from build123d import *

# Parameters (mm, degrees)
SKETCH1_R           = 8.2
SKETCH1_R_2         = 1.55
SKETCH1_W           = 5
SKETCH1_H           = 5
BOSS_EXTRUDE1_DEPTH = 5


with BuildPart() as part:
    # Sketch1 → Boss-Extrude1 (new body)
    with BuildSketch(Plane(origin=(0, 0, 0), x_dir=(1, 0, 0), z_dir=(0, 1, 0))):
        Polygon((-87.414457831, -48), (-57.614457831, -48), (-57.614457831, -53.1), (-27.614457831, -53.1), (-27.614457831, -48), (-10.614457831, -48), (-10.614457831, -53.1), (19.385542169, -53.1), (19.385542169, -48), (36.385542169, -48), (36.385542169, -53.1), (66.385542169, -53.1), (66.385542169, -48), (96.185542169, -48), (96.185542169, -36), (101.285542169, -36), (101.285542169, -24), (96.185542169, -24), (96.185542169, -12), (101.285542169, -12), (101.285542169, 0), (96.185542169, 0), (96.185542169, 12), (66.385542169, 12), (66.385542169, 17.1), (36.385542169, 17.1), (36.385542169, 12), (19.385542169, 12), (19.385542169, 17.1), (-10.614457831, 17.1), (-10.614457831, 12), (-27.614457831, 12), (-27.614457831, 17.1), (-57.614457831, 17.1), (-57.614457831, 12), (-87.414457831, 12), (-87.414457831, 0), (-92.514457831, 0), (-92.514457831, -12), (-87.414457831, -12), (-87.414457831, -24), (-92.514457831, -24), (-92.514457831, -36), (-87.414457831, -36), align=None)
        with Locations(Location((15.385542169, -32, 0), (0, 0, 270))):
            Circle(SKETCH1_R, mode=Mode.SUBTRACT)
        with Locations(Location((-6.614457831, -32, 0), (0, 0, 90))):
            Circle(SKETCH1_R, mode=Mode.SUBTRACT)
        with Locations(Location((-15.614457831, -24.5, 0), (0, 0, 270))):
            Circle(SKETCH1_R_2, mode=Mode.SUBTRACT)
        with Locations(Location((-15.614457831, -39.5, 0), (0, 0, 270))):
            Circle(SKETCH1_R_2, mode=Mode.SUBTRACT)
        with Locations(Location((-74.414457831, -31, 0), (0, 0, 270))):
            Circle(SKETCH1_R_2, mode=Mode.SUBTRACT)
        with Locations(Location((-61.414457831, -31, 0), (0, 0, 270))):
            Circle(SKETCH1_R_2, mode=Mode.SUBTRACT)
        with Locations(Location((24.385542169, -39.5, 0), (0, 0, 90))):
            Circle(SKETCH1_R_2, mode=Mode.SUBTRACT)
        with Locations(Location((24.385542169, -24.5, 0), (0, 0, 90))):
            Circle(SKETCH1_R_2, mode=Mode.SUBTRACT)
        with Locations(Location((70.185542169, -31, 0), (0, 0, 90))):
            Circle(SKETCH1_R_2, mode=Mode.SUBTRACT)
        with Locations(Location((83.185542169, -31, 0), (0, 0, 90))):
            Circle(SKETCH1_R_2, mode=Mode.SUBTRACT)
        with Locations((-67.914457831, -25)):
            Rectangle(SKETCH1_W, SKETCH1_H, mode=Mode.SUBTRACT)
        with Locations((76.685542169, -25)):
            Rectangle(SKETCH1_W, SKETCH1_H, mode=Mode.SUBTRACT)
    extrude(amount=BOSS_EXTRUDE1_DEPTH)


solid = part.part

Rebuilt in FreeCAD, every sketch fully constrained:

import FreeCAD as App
import Part
import Sketcher

doc = App.newDocument("Part")
body = doc.addObject("PartDesign::Body", "Body")

# Sketch on XZ plane
sketch1 = doc.addObject("Sketcher::SketchObject", "Sketch")
body.addObject(sketch1)
sketch1.AttachmentSupport = (doc.XZ_Plane, [""])
sketch1.MapMode = "FlatFace"
sketch1.addGeometry(Part.LineSegment(App.Vector(-87.4, 48, 0), App.Vector(-57.6, 48, 0)), False)
sketch1.addGeometry(Part.LineSegment(App.Vector(-57.6, 48, 0), App.Vector(-57.6, 53.1, 0)), False)
sketch1.addGeometry(Part.LineSegment(App.Vector(-57.6, 53.1, 0), App.Vector(-27.6, 53.1, 0)), False)
sketch1.addGeometry(Part.LineSegment(App.Vector(-27.6, 53.1, 0), App.Vector(-27.6, 48, 0)), False)
sketch1.addGeometry(Part.LineSegment(App.Vector(-27.6, 48, 0), App.Vector(-10.6, 48, 0)), False)
sketch1.addGeometry(Part.LineSegment(App.Vector(-10.6, 48, 0), App.Vector(-10.6, 53.1, 0)), False)
sketch1.addGeometry(Part.LineSegment(App.Vector(-10.6, 53.1, 0), App.Vector(19.4, 53.1, 0)), False)
sketch1.addGeometry(Part.LineSegment(App.Vector(19.4, 53.1, 0), App.Vector(19.4, 48, 0)), False)
sketch1.addGeometry(Part.LineSegment(App.Vector(19.4, 48, 0), App.Vector(36.4, 48, 0)), False)
sketch1.addGeometry(Part.LineSegment(App.Vector(36.4, 48, 0), App.Vector(36.4, 53.1, 0)), False)
sketch1.addGeometry(Part.LineSegment(App.Vector(36.4, 53.1, 0), App.Vector(66.4, 53.1, 0)), False)
sketch1.addGeometry(Part.LineSegment(App.Vector(66.4, 53.1, 0), App.Vector(66.4, 48, 0)), False)
sketch1.addGeometry(Part.LineSegment(App.Vector(66.4, 48, 0), App.Vector(96.2, 48, 0)), False)
sketch1.addGeometry(Part.LineSegment(App.Vector(96.2, 48, 0), App.Vector(96.2, 36, 0)), False)
sketch1.addGeometry(Part.LineSegment(App.Vector(96.2, 36, 0), App.Vector(101.3, 36, 0)), False)
sketch1.addGeometry(Part.LineSegment(App.Vector(101.3, 36, 0), App.Vector(101.3, 24, 0)), False)
sketch1.addGeometry(Part.LineSegment(App.Vector(101.3, 24, 0), App.Vector(96.2, 24, 0)), False)
sketch1.addGeometry(Part.LineSegment(App.Vector(96.2, 24, 0), App.Vector(96.2, 12, 0)), False)
sketch1.addGeometry(Part.LineSegment(App.Vector(96.2, 12, 0), App.Vector(101.3, 12, 0)), False)
sketch1.addGeometry(Part.LineSegment(App.Vector(101.3, 12, 0), App.Vector(101.3, 0, 0)), False)
sketch1.addGeometry(Part.LineSegment(App.Vector(101.3, 0, 0), App.Vector(96.2, 0, 0)), False)
sketch1.addGeometry(Part.LineSegment(App.Vector(96.2, 0, 0), App.Vector(96.2, -12, 0)), False)
sketch1.addGeometry(Part.LineSegment(App.Vector(96.2, -12, 0), App.Vector(66.4, -12, 0)), False)
sketch1.addGeometry(Part.LineSegment(App.Vector(66.4, -12, 0), App.Vector(66.4, -17.1, 0)), False)
sketch1.addGeometry(Part.LineSegment(App.Vector(66.4, -17.1, 0), App.Vector(36.4, -17.1, 0)), False)
sketch1.addGeometry(Part.LineSegment(App.Vector(36.4, -17.1, 0), App.Vector(36.4, -12, 0)), False)
sketch1.addGeometry(Part.LineSegment(App.Vector(36.4, -12, 0), App.Vector(19.4, -12, 0)), False)
sketch1.addGeometry(Part.LineSegment(App.Vector(19.4, -12, 0), App.Vector(19.4, -17.1, 0)), False)
sketch1.addGeometry(Part.LineSegment(App.Vector(19.4, -17.1, 0), App.Vector(-10.6, -17.1, 0)), False)
sketch1.addGeometry(Part.LineSegment(App.Vector(-10.6, -17.1, 0), App.Vector(-10.6, -12, 0)), False)
sketch1.addGeometry(Part.LineSegment(App.Vector(-10.6, -12, 0), App.Vector(-27.6, -12, 0)), False)
sketch1.addGeometry(Part.LineSegment(App.Vector(-27.6, -12, 0), App.Vector(-27.6, -17.1, 0)), False)
sketch1.addGeometry(Part.LineSegment(App.Vector(-27.6, -17.1, 0), App.Vector(-57.6, -17.1, 0)), False)
sketch1.addGeometry(Part.LineSegment(App.Vector(-57.6, -17.1, 0), App.Vector(-57.6, -12, 0)), False)
sketch1.addGeometry(Part.LineSegment(App.Vector(-57.6, -12, 0), App.Vector(-87.4, -12, 0)), False)
sketch1.addGeometry(Part.LineSegment(App.Vector(-87.4, -12, 0), App.Vector(-87.4, 0, 0)), False)
sketch1.addGeometry(Part.LineSegment(App.Vector(-87.4, 0, 0), App.Vector(-92.5, 0, 0)), False)
sketch1.addGeometry(Part.LineSegment(App.Vector(-92.5, 0, 0), App.Vector(-92.5, 12, 0)), False)
sketch1.addGeometry(Part.LineSegment(App.Vector(-92.5, 12, 0), App.Vector(-87.4, 12, 0)), False)
sketch1.addGeometry(Part.LineSegment(App.Vector(-87.4, 12, 0), App.Vector(-87.4, 24, 0)), False)
sketch1.addGeometry(Part.LineSegment(App.Vector(-87.4, 24, 0), App.Vector(-92.5, 24, 0)), False)
sketch1.addGeometry(Part.LineSegment(App.Vector(-92.5, 24, 0), App.Vector(-92.5, 36, 0)), False)
sketch1.addGeometry(Part.LineSegment(App.Vector(-92.5, 36, 0), App.Vector(-87.4, 36, 0)), False)
sketch1.addGeometry(Part.LineSegment(App.Vector(-87.4, 36, 0), App.Vector(-87.4, 48, 0)), False)
sketch1.addGeometry(Part.Circle(App.Vector(-15.6, 39.5, 0), App.Vector(0, 0, 1), 1.6), False)
sketch1.addGeometry(Part.Circle(App.Vector(-6.6, 32, 0), App.Vector(0, 0, 1), 8.2), False)
sketch1.addGeometry(Part.Circle(App.Vector(24.4, 39.5, 0), App.Vector(0, 0, 1), 1.6), False)
sketch1.addGeometry(Part.Circle(App.Vector(15.4, 32, 0), App.Vector(0, 0, 1), 8.2), False)
sketch1.addGeometry(Part.Circle(App.Vector(-74.4, 31, 0), App.Vector(0, 0, 1), 1.6), False)
sketch1.addGeometry(Part.Circle(App.Vector(-61.4, 31, 0), App.Vector(0, 0, 1), 1.6), False)
sketch1.addGeometry(Part.LineSegment(App.Vector(-65.4, 27.5, 0), App.Vector(-70.4, 27.5, 0)), False)
sketch1.addGeometry(Part.LineSegment(App.Vector(-70.4, 27.5, 0), App.Vector(-70.4, 22.5, 0)), False)
sketch1.addGeometry(Part.LineSegment(App.Vector(-70.4, 22.5, 0), App.Vector(-65.4, 22.5, 0)), False)
sketch1.addGeometry(Part.LineSegment(App.Vector(-65.4, 22.5, 0), App.Vector(-65.4, 27.5, 0)), False)
sketch1.addGeometry(Part.Circle(App.Vector(-15.6, 24.5, 0), App.Vector(0, 0, 1), 1.6), False)
sketch1.addGeometry(Part.Circle(App.Vector(70.2, 31, 0), App.Vector(0, 0, 1), 1.6), False)
sketch1.addGeometry(Part.Circle(App.Vector(83.2, 31, 0), App.Vector(0, 0, 1), 1.6), False)
sketch1.addGeometry(Part.Circle(App.Vector(24.4, 24.5, 0), App.Vector(0, 0, 1), 1.6), False)
sketch1.addGeometry(Part.LineSegment(App.Vector(79.2, 27.5, 0), App.Vector(74.2, 27.5, 0)), False)
sketch1.addGeometry(Part.LineSegment(App.Vector(74.2, 27.5, 0), App.Vector(74.2, 22.5, 0)), False)
sketch1.addGeometry(Part.LineSegment(App.Vector(74.2, 22.5, 0), App.Vector(79.2, 22.5, 0)), False)
sketch1.addGeometry(Part.LineSegment(App.Vector(79.2, 22.5, 0), App.Vector(79.2, 27.5, 0)), False)
sketch1.addConstraint(Sketcher.Constraint("Coincident", 0, 2, 1, 1))
sketch1.addConstraint(Sketcher.Constraint("Coincident", 1, 2, 2, 1))
sketch1.addConstraint(Sketcher.Constraint("Coincident", 2, 2, 3, 1))
sketch1.addConstraint(Sketcher.Constraint("Coincident", 3, 2, 4, 1))
sketch1.addConstraint(Sketcher.Constraint("Coincident", 4, 2, 5, 1))
sketch1.addConstraint(Sketcher.Constraint("Coincident", 5, 2, 6, 1))
sketch1.addConstraint(Sketcher.Constraint("Coincident", 6, 2, 7, 1))
sketch1.addConstraint(Sketcher.Constraint("Coincident", 7, 2, 8, 1))
sketch1.addConstraint(Sketcher.Constraint("Coincident", 8, 2, 9, 1))
sketch1.addConstraint(Sketcher.Constraint("Coincident", 9, 2, 10, 1))
sketch1.addConstraint(Sketcher.Constraint("Coincident", 10, 2, 11, 1))
sketch1.addConstraint(Sketcher.Constraint("Coincident", 11, 2, 12, 1))
sketch1.addConstraint(Sketcher.Constraint("Coincident", 12, 2, 13, 1))
sketch1.addConstraint(Sketcher.Constraint("Coincident", 13, 2, 14, 1))
sketch1.addConstraint(Sketcher.Constraint("Coincident", 14, 2, 15, 1))
sketch1.addConstraint(Sketcher.Constraint("Coincident", 15, 2, 16, 1))
sketch1.addConstraint(Sketcher.Constraint("Coincident", 16, 2, 17, 1))
sketch1.addConstraint(Sketcher.Constraint("Coincident", 17, 2, 18, 1))
sketch1.addConstraint(Sketcher.Constraint("Coincident", 18, 2, 19, 1))
sketch1.addConstraint(Sketcher.Constraint("Coincident", 19, 2, 20, 1))
sketch1.addConstraint(Sketcher.Constraint("Coincident", 20, 2, 21, 1))
sketch1.addConstraint(Sketcher.Constraint("Coincident", 21, 2, 22, 1))
sketch1.addConstraint(Sketcher.Constraint("Coincident", 22, 2, 23, 1))
sketch1.addConstraint(Sketcher.Constraint("Coincident", 23, 2, 24, 1))
sketch1.addConstraint(Sketcher.Constraint("Coincident", 24, 2, 25, 1))
sketch1.addConstraint(Sketcher.Constraint("Coincident", 25, 2, 26, 1))
sketch1.addConstraint(Sketcher.Constraint("Coincident", 26, 2, 27, 1))
sketch1.addConstraint(Sketcher.Constraint("Coincident", 27, 2, 28, 1))
sketch1.addConstraint(Sketcher.Constraint("Coincident", 28, 2, 29, 1))
sketch1.addConstraint(Sketcher.Constraint("Coincident", 29, 2, 30, 1))
sketch1.addConstraint(Sketcher.Constraint("Coincident", 30, 2, 31, 1))
sketch1.addConstraint(Sketcher.Constraint("Coincident", 31, 2, 32, 1))
sketch1.addConstraint(Sketcher.Constraint("Coincident", 32, 2, 33, 1))
sketch1.addConstraint(Sketcher.Constraint("Coincident", 33, 2, 34, 1))
sketch1.addConstraint(Sketcher.Constraint("Coincident", 34, 2, 35, 1))
sketch1.addConstraint(Sketcher.Constraint("Coincident", 35, 2, 36, 1))
sketch1.addConstraint(Sketcher.Constraint("Coincident", 36, 2, 37, 1))
sketch1.addConstraint(Sketcher.Constraint("Coincident", 37, 2, 38, 1))
sketch1.addConstraint(Sketcher.Constraint("Coincident", 38, 2, 39, 1))
sketch1.addConstraint(Sketcher.Constraint("Coincident", 39, 2, 40, 1))
sketch1.addConstraint(Sketcher.Constraint("Coincident", 40, 2, 41, 1))
sketch1.addConstraint(Sketcher.Constraint("Coincident", 41, 2, 42, 1))
sketch1.addConstraint(Sketcher.Constraint("Coincident", 42, 2, 43, 1))
sketch1.addConstraint(Sketcher.Constraint("Coincident", 43, 2, 0, 1))
sketch1.addConstraint(Sketcher.Constraint("Coincident", 50, 2, 51, 1))
sketch1.addConstraint(Sketcher.Constraint("Coincident", 51, 2, 52, 1))
sketch1.addConstraint(Sketcher.Constraint("Coincident", 52, 2, 53, 1))
sketch1.addConstraint(Sketcher.Constraint("Coincident", 53, 2, 50, 1))
sketch1.addConstraint(Sketcher.Constraint("Coincident", 58, 2, 59, 1))
sketch1.addConstraint(Sketcher.Constraint("Coincident", 59, 2, 60, 1))
sketch1.addConstraint(Sketcher.Constraint("Coincident", 60, 2, 61, 1))
sketch1.addConstraint(Sketcher.Constraint("Coincident", 61, 2, 58, 1))
sketch1.addConstraint(Sketcher.Constraint("Horizontal", 0))
sketch1.addConstraint(Sketcher.Constraint("Vertical", 1))
sketch1.addConstraint(Sketcher.Constraint("Horizontal", 2))
sketch1.addConstraint(Sketcher.Constraint("Vertical", 3))
sketch1.addConstraint(Sketcher.Constraint("Horizontal", 4))
sketch1.addConstraint(Sketcher.Constraint("Vertical", 5))
sketch1.addConstraint(Sketcher.Constraint("Horizontal", 6))
sketch1.addConstraint(Sketcher.Constraint("Vertical", 7))
sketch1.addConstraint(Sketcher.Constraint("Horizontal", 8))
sketch1.addConstraint(Sketcher.Constraint("Vertical", 9))
sketch1.addConstraint(Sketcher.Constraint("Horizontal", 10))
sketch1.addConstraint(Sketcher.Constraint("Vertical", 11))
sketch1.addConstraint(Sketcher.Constraint("Horizontal", 12))
sketch1.addConstraint(Sketcher.Constraint("Vertical", 13))
sketch1.addConstraint(Sketcher.Constraint("Horizontal", 14))
sketch1.addConstraint(Sketcher.Constraint("Vertical", 15))
sketch1.addConstraint(Sketcher.Constraint("Horizontal", 16))
sketch1.addConstraint(Sketcher.Constraint("Vertical", 17))
sketch1.addConstraint(Sketcher.Constraint("Horizontal", 18))
sketch1.addConstraint(Sketcher.Constraint("Vertical", 19))
sketch1.addConstraint(Sketcher.Constraint("Horizontal", 20))
sketch1.addConstraint(Sketcher.Constraint("Vertical", 21))
sketch1.addConstraint(Sketcher.Constraint("Horizontal", 22))
sketch1.addConstraint(Sketcher.Constraint("Vertical", 23))
sketch1.addConstraint(Sketcher.Constraint("Horizontal", 24))
sketch1.addConstraint(Sketcher.Constraint("Vertical", 25))
sketch1.addConstraint(Sketcher.Constraint("Horizontal", 26))
sketch1.addConstraint(Sketcher.Constraint("Vertical", 27))
sketch1.addConstraint(Sketcher.Constraint("Horizontal", 28))
sketch1.addConstraint(Sketcher.Constraint("Vertical", 29))
sketch1.addConstraint(Sketcher.Constraint("Horizontal", 30))
sketch1.addConstraint(Sketcher.Constraint("Vertical", 31))
sketch1.addConstraint(Sketcher.Constraint("Horizontal", 32))
sketch1.addConstraint(Sketcher.Constraint("Vertical", 33))
sketch1.addConstraint(Sketcher.Constraint("Horizontal", 34))
sketch1.addConstraint(Sketcher.Constraint("Vertical", 35))
sketch1.addConstraint(Sketcher.Constraint("Horizontal", 36))
sketch1.addConstraint(Sketcher.Constraint("Vertical", 37))
sketch1.addConstraint(Sketcher.Constraint("Horizontal", 38))
sketch1.addConstraint(Sketcher.Constraint("Vertical", 39))
sketch1.addConstraint(Sketcher.Constraint("Horizontal", 40))
sketch1.addConstraint(Sketcher.Constraint("Vertical", 41))
sketch1.addConstraint(Sketcher.Constraint("Horizontal", 42))
sketch1.addConstraint(Sketcher.Constraint("Vertical", 43))
sketch1.addConstraint(Sketcher.Constraint("Horizontal", 50))
sketch1.addConstraint(Sketcher.Constraint("Vertical", 51))
sketch1.addConstraint(Sketcher.Constraint("Horizontal", 52))
sketch1.addConstraint(Sketcher.Constraint("Vertical", 53))
sketch1.addConstraint(Sketcher.Constraint("Horizontal", 58))
sketch1.addConstraint(Sketcher.Constraint("Vertical", 59))
sketch1.addConstraint(Sketcher.Constraint("Horizontal", 60))
sketch1.addConstraint(Sketcher.Constraint("Vertical", 61))
sketch1.addConstraint(Sketcher.Constraint("Equal", 44, 46))
sketch1.addConstraint(Sketcher.Constraint("Equal", 45, 47))
sketch1.addConstraint(Sketcher.Constraint("Equal", 46, 48))
sketch1.addConstraint(Sketcher.Constraint("Equal", 48, 49))
sketch1.addConstraint(Sketcher.Constraint("Equal", 49, 54))
sketch1.addConstraint(Sketcher.Constraint("Equal", 54, 55))
sketch1.addConstraint(Sketcher.Constraint("Equal", 55, 56))
sketch1.addConstraint(Sketcher.Constraint("Equal", 56, 57))
sketch1.addConstraint(Sketcher.Constraint("Symmetric", 17, 2, 21, 2, -1))
sketch1.addConstraint(Sketcher.Constraint("Symmetric", 34, 2, 38, 2, -1))
sketch1.addConstraint(Sketcher.Constraint("PointOnObject", 19, 2, -1))
sketch1.addConstraint(Sketcher.Constraint("PointOnObject", 35, 2, -1))
sketch1.addConstraint(Sketcher.Constraint("Horizontal", 44, 3, 46, 3))
sketch1.addConstraint(Sketcher.Constraint("Horizontal", 45, 3, 47, 3))
sketch1.addConstraint(Sketcher.Constraint("Horizontal", 48, 3, 49, 3))
sketch1.addConstraint(Sketcher.Constraint("Horizontal", 49, 3, 55, 3))
sketch1.addConstraint(Sketcher.Constraint("Horizontal", 55, 3, 56, 3))
sketch1.addConstraint(Sketcher.Constraint("Horizontal", 54, 3, 57, 3))
sketch1.addConstraint(Sketcher.Constraint("Horizontal", 0, 2, 3, 2))
sketch1.addConstraint(Sketcher.Constraint("Horizontal", 2, 2, 5, 2))
sketch1.addConstraint(Sketcher.Constraint("Horizontal", 4, 2, 7, 2))
sketch1.addConstraint(Sketcher.Constraint("Horizontal", 6, 2, 9, 2))
sketch1.addConstraint(Sketcher.Constraint("Horizontal", 8, 2, 11, 2))
sketch1.addConstraint(Sketcher.Constraint("Horizontal", 22, 2, 25, 2))
sketch1.addConstraint(Sketcher.Constraint("Horizontal", 24, 2, 27, 2))
sketch1.addConstraint(Sketcher.Constraint("Horizontal", 26, 2, 29, 2))
sketch1.addConstraint(Sketcher.Constraint("Horizontal", 28, 2, 31, 2))
sketch1.addConstraint(Sketcher.Constraint("Horizontal", 30, 2, 33, 2))
sketch1.addConstraint(Sketcher.Constraint("Horizontal", 16, 2, 39, 2))
sketch1.addConstraint(Sketcher.Constraint("Horizontal", 14, 2, 41, 2))
sketch1.addConstraint(Sketcher.Constraint("Horizontal", 53, 2, 58, 2))
sketch1.addConstraint(Sketcher.Constraint("Horizontal", 52, 2, 59, 2))
sketch1.addConstraint(Sketcher.Constraint("Vertical", 44, 3, 54, 3))
sketch1.addConstraint(Sketcher.Constraint("Vertical", 46, 3, 57, 3))
sketch1.addConstraint(Sketcher.Constraint("Vertical", 13, 2, 16, 2))
sketch1.addConstraint(Sketcher.Constraint("Vertical", 15, 2, 18, 2))
sketch1.addConstraint(Sketcher.Constraint("Vertical", 11, 2, 22, 2))
sketch1.addConstraint(Sketcher.Constraint("Vertical", 9, 2, 24, 2))
sketch1.addConstraint(Sketcher.Constraint("Vertical", 7, 2, 26, 2))
sketch1.addConstraint(Sketcher.Constraint("Vertical", 5, 2, 28, 2))
sketch1.addConstraint(Sketcher.Constraint("Vertical", 3, 2, 30, 2))
sketch1.addConstraint(Sketcher.Constraint("Vertical", 1, 2, 32, 2))
sketch1.addConstraint(Sketcher.Constraint("Vertical", 37, 2, 40, 2))
sketch1.addConstraint(Sketcher.Constraint("Vertical", 39, 2, 42, 2))
sketch1.addConstraint(Sketcher.Constraint("Equal", 2, 6))
sketch1.addConstraint(Sketcher.Constraint("Equal", 4, 8))
sketch1.addConstraint(Sketcher.Constraint("Equal", 6, 10))
sketch1.addConstraint(Sketcher.Constraint("Equal", 0, 12))
sketch1.addConstraint(Sketcher.Constraint("Equal", 20, 36))
sketch1.addConstraint(Sketcher.Constraint("Equal", 52, 58))
sketch1.addConstraint(Sketcher.Constraint("Equal", 42, 1))
sketch1.addConstraint(Sketcher.Constraint("Equal", 13, 15))
sketch1.addConstraint(Sketcher.Constraint("Equal", 15, 17))
sketch1.addConstraint(Sketcher.Constraint("Equal", 17, 19))
sketch1.addConstraint(Sketcher.Constraint("Equal", 11, 23))
sketch1.addConstraint(Sketcher.Constraint("Equal", 60, 51))
sketch1.addConstraint(Sketcher.Constraint("Diameter", 44, 3.1))
sketch1.addConstraint(Sketcher.Constraint("Diameter", 45, 16.4))
sketch1.addConstraint(Sketcher.Constraint("DistanceX", 2, 1, 2, 2, 30.0))
sketch1.addConstraint(Sketcher.Constraint("DistanceX", 4, 1, 4, 2, 17.0))
sketch1.addConstraint(Sketcher.Constraint("DistanceX", 50, 2, 50, 1, 5.0))
sketch1.addConstraint(Sketcher.Constraint("DistanceY", 13, 2, 13, 1, 12.0))
sketch1.addConstraint(Sketcher.Constraint("DistanceX", 0, 1, 0, 2, 29.8))
sketch1.addConstraint(Sketcher.Constraint("DistanceX", 14, 1, 14, 2, 5.1))
sketch1.addConstraint(Sketcher.Constraint("DistanceY", -1, 1, 45, 3, 32.0))
sketch1.addConstraint(Sketcher.Constraint("DistanceY", -1, 1, 48, 3, 31.0))
sketch1.addConstraint(Sketcher.Constraint("DistanceY", -1, 1, 44, 3, 39.5))
sketch1.addConstraint(Sketcher.Constraint("DistanceY", -1, 1, 54, 3, 24.5))
sketch1.addConstraint(Sketcher.Constraint("DistanceY", -1, 1, 50, 2, 27.5))
sketch1.addConstraint(Sketcher.Constraint("DistanceX", 44, 3, -1, 1, 15.614458))
sketch1.addConstraint(Sketcher.Constraint("DistanceX", 45, 3, -1, 1, 6.614458))
sketch1.addConstraint(Sketcher.Constraint("DistanceX", -1, 1, 46, 3, 24.385542))
sketch1.addConstraint(Sketcher.Constraint("DistanceX", -1, 1, 47, 3, 15.385542))
sketch1.addConstraint(Sketcher.Constraint("DistanceX", 48, 3, -1, 1, 74.414458))
sketch1.addConstraint(Sketcher.Constraint("DistanceX", 49, 3, -1, 1, 61.414458))
sketch1.addConstraint(Sketcher.Constraint("DistanceX", -1, 1, 55, 3, 70.185542))
sketch1.addConstraint(Sketcher.Constraint("DistanceX", -1, 1, 56, 3, 83.185542))
sketch1.addConstraint(Sketcher.Constraint("DistanceX", 0, 2, -1, 1, 57.614458))
sketch1.addConstraint(Sketcher.Constraint("DistanceX", 50, 2, -1, 1, 70.414458))
sketch1.addConstraint(Sketcher.Constraint("DistanceX", -1, 1, 58, 2, 74.185542))
pad1 = doc.addObject("PartDesign::Pad", "Pad")
body.addObject(pad1)
pad1.Profile = sketch1
pad1.Length = 5
pad1.Reversed = True

doc.recompute()
